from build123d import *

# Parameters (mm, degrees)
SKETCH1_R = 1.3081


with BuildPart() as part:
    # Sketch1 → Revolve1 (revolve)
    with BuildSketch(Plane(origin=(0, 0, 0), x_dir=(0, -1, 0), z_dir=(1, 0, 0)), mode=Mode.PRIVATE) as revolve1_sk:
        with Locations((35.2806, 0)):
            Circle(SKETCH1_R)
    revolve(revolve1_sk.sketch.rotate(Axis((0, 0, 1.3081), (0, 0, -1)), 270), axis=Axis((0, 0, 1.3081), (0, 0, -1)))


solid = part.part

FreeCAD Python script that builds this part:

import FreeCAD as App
import Part
import Sketcher

V = App.Vector
Q = App.Units.Quantity

doc = App.newDocument("Part")
body = doc.addObject("PartDesign::Body", "Body")

# Sketch on YZ plane
sketch1 = doc.addObject("Sketcher::SketchObject", "Sketch")
body.addObject(sketch1)
sketch1.AttachmentSupport = (doc.YZ_Plane, [""])
sketch1.MapMode = "FlatFace"
sketch1.addGeometry(Part.Circle(V(-35.3, 0, 0), V(0, 0, 1), 1.3), False)
sketch1.addConstraint([
    Sketcher.Constraint("PointOnObject", 0, 3, -1),
    Sketcher.Constraint("Diameter", 0, Q("0.103 in")),
    Sketcher.Constraint("DistanceX", 0, 3, -1, 1, Q("1.389 in")),
])
revolution = doc.addObject("PartDesign::Revolution", "Revolution")
body.addObject(revolution)
revolution.Profile = sketch1
revolution.ReferenceAxis = (sketch1, ["V_Axis"])
revolution.Angle = 360

doc.recompute()
